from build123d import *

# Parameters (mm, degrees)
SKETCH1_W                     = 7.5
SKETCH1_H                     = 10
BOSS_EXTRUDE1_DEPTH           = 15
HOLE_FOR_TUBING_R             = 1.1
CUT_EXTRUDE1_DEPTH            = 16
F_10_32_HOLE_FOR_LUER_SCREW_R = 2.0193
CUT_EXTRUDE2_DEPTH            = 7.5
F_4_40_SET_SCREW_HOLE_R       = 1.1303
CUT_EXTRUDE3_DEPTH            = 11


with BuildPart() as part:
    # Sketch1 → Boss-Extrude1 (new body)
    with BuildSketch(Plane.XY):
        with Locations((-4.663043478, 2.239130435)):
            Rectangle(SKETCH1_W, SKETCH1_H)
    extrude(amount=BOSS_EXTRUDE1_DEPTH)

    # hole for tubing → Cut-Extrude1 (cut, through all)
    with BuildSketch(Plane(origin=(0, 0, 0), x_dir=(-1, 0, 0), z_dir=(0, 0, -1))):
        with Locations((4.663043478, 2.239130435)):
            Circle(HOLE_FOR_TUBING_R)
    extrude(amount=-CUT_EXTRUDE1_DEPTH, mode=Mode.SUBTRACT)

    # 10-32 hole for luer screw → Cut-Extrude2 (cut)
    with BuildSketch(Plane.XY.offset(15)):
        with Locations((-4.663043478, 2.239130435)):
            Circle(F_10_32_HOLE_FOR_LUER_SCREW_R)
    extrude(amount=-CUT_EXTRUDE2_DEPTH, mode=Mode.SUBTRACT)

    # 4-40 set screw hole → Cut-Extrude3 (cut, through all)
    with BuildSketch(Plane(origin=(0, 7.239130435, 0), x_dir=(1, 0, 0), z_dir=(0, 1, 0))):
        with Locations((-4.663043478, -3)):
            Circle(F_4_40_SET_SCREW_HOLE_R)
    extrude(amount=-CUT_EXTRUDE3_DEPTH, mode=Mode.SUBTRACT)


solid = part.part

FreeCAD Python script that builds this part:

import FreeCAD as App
import Part
import Sketcher
Q = App.Units.Quantity

doc = App.newDocument("Part")
body = doc.addObject("PartDesign::Body", "Body")

sketch1 = body.newObject("Sketcher::SketchObject", "Sketch")
sketch1.AttachmentSupport = (doc.getObject("XY_Plane"), [""])
sketch1.MapMode = "FlatFace"
sketch1.addGeometry([
    Part.LineSegment(App.Vector(-8, 7, 0), App.Vector(-8, -3, 0)),
    Part.LineSegment(App.Vector(-8, -3, 0), App.Vector(-1, -3, 0)),
    Part.LineSegment(App.Vector(-1, -3, 0), App.Vector(-1, 7, 0)),
    Part.LineSegment(App.Vector(-1, 7, 0), App.Vector(-8, 7, 0)),
], False)
sketch1.addConstraint([
    Sketcher.Constraint("Coincident", 0, 2, 1, 1),
    Sketcher.Constraint("Coincident", 1, 2, 2, 1),
    Sketcher.Constraint("Coincident", 2, 2, 3, 1),
    Sketcher.Constraint("Coincident", 3, 2, 0, 1),
    Sketcher.Constraint("Vertical", 0),
    Sketcher.Constraint("Horizontal", 1),
    Sketcher.Constraint("Vertical", 2),
    Sketcher.Constraint("Horizontal", 3),
    Sketcher.Constraint("DistanceY", 0, 2, 0, 1, Q("10 mm")),
    Sketcher.Constraint("DistanceX", 1, 1, 1, 2, Q("7.5 mm")),
    Sketcher.Constraint("DistanceY", 0, 2, -1, 1, Q("2.76087 mm")),
    Sketcher.Constraint("DistanceX", 0, 2, -1, 1, Q("8.413043 mm")),
])
pad1 = body.newObject("PartDesign::Pad", "Pad")
pad1.Profile = sketch1
pad1.Length = 15

sketch2 = body.newObject("Sketcher::SketchObject", "Sketch001")
sketch2.AttachmentSupport = (doc.getObject("XY_Plane"), [""])
sketch2.MapMode = "FlatFace"
sketch2.addGeometry(Part.Circle(App.Vector(-4.7, 2.2, 0), App.Vector(0, 0, 1), 1.1), False)
sketch2.addConstraint([
    Sketcher.Constraint("Diameter", 0, Q("2.2 mm")),
    Sketcher.Constraint("DistanceY", -1, 1, 0, 3, Q("2.23913 mm")),
    Sketcher.Constraint("DistanceX", 0, 3, -1, 1, Q("4.663043 mm")),
])
pocket1 = body.newObject("PartDesign::Pocket", "Pocket")
pocket1.Profile = sketch2
pocket1.Type = "ThroughAll"
pocket1.Reversed = True

sketch3 = body.newObject("Sketcher::SketchObject", "Sketch002")
sketch3.AttachmentSupport = (doc.getObject("XY_Plane"), [""])
sketch3.MapMode = "FlatFace"
sketch3.AttachmentOffset = App.Placement(App.Vector(0, 0, 15), App.Rotation())
sketch3.addGeometry(Part.Circle(App.Vector(-4.7, 2.2, 0), App.Vector(0, 0, 1), 2), False)
sketch3.addConstraint([
    Sketcher.Constraint("Diameter", 0, Q("4.0386 mm")),
    Sketcher.Constraint("DistanceY", -1, 1, 0, 3, Q("2.23913 mm")),
    Sketcher.Constraint("DistanceX", 0, 3, -1, 1, Q("4.663043 mm")),
])
pocket2 = body.newObject("PartDesign::Pocket", "Pocket001")
pocket2.Profile = sketch3
pocket2.Length = 7.5

sketch4 = body.newObject("Sketcher::SketchObject", "Sketch003")
sketch4.AttachmentSupport = (doc.getObject("XZ_Plane"), [""])
sketch4.MapMode = "FlatFace"
sketch4.AttachmentOffset = App.Placement(App.Vector(0, 0, -7.23913), App.Rotation())
sketch4.addGeometry(Part.Circle(App.Vector(-4.7, 3, 0), App.Vector(0, 0, 1), 1.1), False)
sketch4.addConstraint([
    Sketcher.Constraint("DistanceY", -1, 1, 0, 3, Q("3 mm")),
    Sketcher.Constraint("Diameter", 0, Q("2.2606 mm")),
    Sketcher.Constraint("DistanceX", 0, 3, -1, 1, Q("4.663043 mm")),
])
pocket3 = body.newObject("PartDesign::Pocket", "Pocket002")
pocket3.Profile = sketch4
pocket3.Type = "ThroughAll"
pocket3.Reversed = True

doc.recompute()
